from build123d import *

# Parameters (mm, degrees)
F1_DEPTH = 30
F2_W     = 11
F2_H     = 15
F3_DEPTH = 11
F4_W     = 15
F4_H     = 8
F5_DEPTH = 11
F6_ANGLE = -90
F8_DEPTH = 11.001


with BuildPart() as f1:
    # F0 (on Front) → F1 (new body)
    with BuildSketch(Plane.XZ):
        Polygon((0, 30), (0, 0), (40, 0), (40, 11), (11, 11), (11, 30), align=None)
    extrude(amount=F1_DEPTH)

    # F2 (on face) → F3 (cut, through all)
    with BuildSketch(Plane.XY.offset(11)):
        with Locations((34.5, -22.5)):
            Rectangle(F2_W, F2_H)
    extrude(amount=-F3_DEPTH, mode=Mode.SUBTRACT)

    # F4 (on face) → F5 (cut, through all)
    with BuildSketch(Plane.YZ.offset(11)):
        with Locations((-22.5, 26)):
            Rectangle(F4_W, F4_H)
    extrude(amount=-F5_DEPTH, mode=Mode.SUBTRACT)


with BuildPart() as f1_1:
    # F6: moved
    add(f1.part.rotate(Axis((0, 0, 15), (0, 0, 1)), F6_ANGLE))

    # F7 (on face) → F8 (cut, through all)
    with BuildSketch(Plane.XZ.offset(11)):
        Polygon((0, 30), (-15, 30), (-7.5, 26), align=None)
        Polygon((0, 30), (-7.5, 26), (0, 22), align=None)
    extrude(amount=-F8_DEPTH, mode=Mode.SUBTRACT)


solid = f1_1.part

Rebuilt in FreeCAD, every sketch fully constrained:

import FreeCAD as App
import Part
import Sketcher
from FreeCAD import Vector

doc = App.newDocument("Part")
body = doc.addObject("PartDesign::Body", "Body")

sketch1 = body.newObject("Sketcher::SketchObject", "Sketch")
sketch1.AttachmentSupport = (doc.getObject("XZ_Plane"), [""])
sketch1.MapMode = "FlatFace"
sketch1.addGeometry([
    Part.LineSegment(Vector(0, 30, 0), Vector(0, 0, 0)),
    Part.LineSegment(Vector(0, 0, 0), Vector(40, 0, 0)),
    Part.LineSegment(Vector(40, 0, 0), Vector(40, 11, 0)),
    Part.LineSegment(Vector(40, 11, 0), Vector(11, 11, 0)),
    Part.LineSegment(Vector(11, 11, 0), Vector(11, 30, 0)),
    Part.LineSegment(Vector(11, 30, 0), Vector(0, 30, 0)),
], False)
sketch1.addConstraint([
    Sketcher.Constraint("Coincident", 0, 2, 1, 1),
    Sketcher.Constraint("Coincident", 1, 2, 2, 1),
    Sketcher.Constraint("Coincident", 2, 2, 3, 1),
    Sketcher.Constraint("Coincident", 3, 2, 4, 1),
    Sketcher.Constraint("Coincident", 4, 2, 5, 1),
    Sketcher.Constraint("Coincident", 5, 2, 0, 1),
    Sketcher.Constraint("Vertical", 0),
    Sketcher.Constraint("Horizontal", 1),
    Sketcher.Constraint("Vertical", 2),
    Sketcher.Constraint("Horizontal", 3),
    Sketcher.Constraint("Vertical", 4),
    Sketcher.Constraint("Horizontal", 5),
    Sketcher.Constraint("Coincident", 0, 2, -1, 1),
    Sketcher.Constraint("Equal", 5, 2),
    Sketcher.Constraint("DistanceX", 1, 1, 1, 2, 40.0),
    Sketcher.Constraint("DistanceX", 3, 2, 3, 1, 29.0),
    Sketcher.Constraint("DistanceY", 0, 2, 0, 1, 30.0),
])
pad1 = body.newObject("PartDesign::Pad", "Pad")
pad1.Profile = sketch1
pad1.Length = 30

sketch2 = body.newObject("Sketcher::SketchObject", "Sketch001")
sketch2.AttachmentSupport = (doc.getObject("XY_Plane"), [""])
sketch2.MapMode = "FlatFace"
sketch2.AttachmentOffset = App.Placement(Vector(0, 0, 11), App.Rotation())
sketch2.addGeometry([
    Part.LineSegment(Vector(29, -15, 0), Vector(29, -30, 0)),
    Part.LineSegment(Vector(29, -30, 0), Vector(40, -30, 0)),
    Part.LineSegment(Vector(40, -30, 0), Vector(40, -15, 0)),
    Part.LineSegment(Vector(40, -15, 0), Vector(29, -15, 0)),
], False)
sketch2.addConstraint([
    Sketcher.Constraint("Coincident", 0, 2, 1, 1),
    Sketcher.Constraint("Coincident", 1, 2, 2, 1),
    Sketcher.Constraint("Coincident", 2, 2, 3, 1),
    Sketcher.Constraint("Coincident", 3, 2, 0, 1),
    Sketcher.Constraint("Vertical", 0),
    Sketcher.Constraint("Horizontal", 1),
    Sketcher.Constraint("Vertical", 2),
    Sketcher.Constraint("Horizontal", 3),
    Sketcher.Constraint("DistanceX", 1, 1, 1, 2, 11.0),
    Sketcher.Constraint("DistanceY", 0, 2, 0, 1, 15.0),
    Sketcher.Constraint("DistanceX", -1, 1, 0, 2, 29.0),
    Sketcher.Constraint("DistanceY", 0, 2, -1, 1, 30.0),
])
pocket1 = body.newObject("PartDesign::Pocket", "Pocket")
pocket1.Profile = sketch2
pocket1.Type = "ThroughAll"

sketch3 = body.newObject("Sketcher::SketchObject", "Sketch002")
sketch3.AttachmentSupport = (doc.getObject("YZ_Plane"), [""])
sketch3.MapMode = "FlatFace"
sketch3.AttachmentOffset = App.Placement(Vector(0, 0, 11), App.Rotation())
sketch3.addGeometry([
    Part.LineSegment(Vector(-30, 30, 0), Vector(-30, 22, 0)),
    Part.LineSegment(Vector(-30, 22, 0), Vector(-15, 22, 0)),
    Part.LineSegment(Vector(-15, 22, 0), Vector(-15, 30, 0)),
    Part.LineSegment(Vector(-15, 30, 0), Vector(-30, 30, 0)),
], False)
sketch3.addConstraint([
    Sketcher.Constraint("Coincident", 0, 2, 1, 1),
    Sketcher.Constraint("Coincident", 1, 2, 2, 1),
    Sketcher.Constraint("Coincident", 2, 2, 3, 1),
    Sketcher.Constraint("Coincident", 3, 2, 0, 1),
    Sketcher.Constraint("Vertical", 0),
    Sketcher.Constraint("Horizontal", 1),
    Sketcher.Constraint("Vertical", 2),
    Sketcher.Constraint("Horizontal", 3),
    Sketcher.Constraint("DistanceX", 1, 1, 1, 2, 15.0),
    Sketcher.Constraint("DistanceY", 0, 2, 0, 1, 8.0),
    Sketcher.Constraint("DistanceX", 0, 2, -1, 1, 30.0),
    Sketcher.Constraint("DistanceY", -1, 1, 0, 2, 22.0),
])
pocket2 = body.newObject("PartDesign::Pocket", "Pocket001")
pocket2.Profile = sketch3
pocket2.Type = "ThroughAll"
body2 = doc.addObject("PartDesign::Body", "Body001")
doc.recompute()

body.Placement = App.Placement(Vector(0, 0, 0), App.Rotation(Vector(0, 0, 1), 270))
boolean = body2.newObject("PartDesign::Boolean", "Boolean")
boolean.Type = "Fuse"
boolean.addObjects([body])

sketch4 = body2.newObject("Sketcher::SketchObject", "Sketch003")
sketch4.AttachmentSupport = (doc.getObject("XZ_Plane001"), [""])
sketch4.MapMode = "FlatFace"
sketch4.AttachmentOffset = App.Placement(Vector(0, 0, 11), App.Rotation())
sketch4.addGeometry([
    Part.LineSegment(Vector(0, 30, 0), Vector(-15, 30, 0)),
    Part.LineSegment(Vector(-15, 30, 0), Vector(0, 22, 0)),
    Part.LineSegment(Vector(0, 22, 0), Vector(0, 30, 0)),
], False)
sketch4.addConstraint([
    Sketcher.Constraint("Coincident", 0, 2, 1, 1),
    Sketcher.Constraint("Coincident", 1, 2, 2, 1),
    Sketcher.Constraint("Coincident", 2, 2, 0, 1),
    Sketcher.Constraint("Horizontal", 0),
    Sketcher.Constraint("Vertical", 2),
    Sketcher.Constraint("PointOnObject", 1, 2, -2),
    Sketcher.Constraint("DistanceX", 0, 2, 0, 1, 15.0),
    Sketcher.Constraint("DistanceY", 2, 1, 2, 2, 8.0),
    Sketcher.Constraint("DistanceY", -1, 1, 0, 2, 30.0),
])
pocket3 = body2.newObject("PartDesign::Pocket", "Pocket002")
pocket3.Profile = sketch4
pocket3.Type = "ThroughAll"

doc.recompute()
